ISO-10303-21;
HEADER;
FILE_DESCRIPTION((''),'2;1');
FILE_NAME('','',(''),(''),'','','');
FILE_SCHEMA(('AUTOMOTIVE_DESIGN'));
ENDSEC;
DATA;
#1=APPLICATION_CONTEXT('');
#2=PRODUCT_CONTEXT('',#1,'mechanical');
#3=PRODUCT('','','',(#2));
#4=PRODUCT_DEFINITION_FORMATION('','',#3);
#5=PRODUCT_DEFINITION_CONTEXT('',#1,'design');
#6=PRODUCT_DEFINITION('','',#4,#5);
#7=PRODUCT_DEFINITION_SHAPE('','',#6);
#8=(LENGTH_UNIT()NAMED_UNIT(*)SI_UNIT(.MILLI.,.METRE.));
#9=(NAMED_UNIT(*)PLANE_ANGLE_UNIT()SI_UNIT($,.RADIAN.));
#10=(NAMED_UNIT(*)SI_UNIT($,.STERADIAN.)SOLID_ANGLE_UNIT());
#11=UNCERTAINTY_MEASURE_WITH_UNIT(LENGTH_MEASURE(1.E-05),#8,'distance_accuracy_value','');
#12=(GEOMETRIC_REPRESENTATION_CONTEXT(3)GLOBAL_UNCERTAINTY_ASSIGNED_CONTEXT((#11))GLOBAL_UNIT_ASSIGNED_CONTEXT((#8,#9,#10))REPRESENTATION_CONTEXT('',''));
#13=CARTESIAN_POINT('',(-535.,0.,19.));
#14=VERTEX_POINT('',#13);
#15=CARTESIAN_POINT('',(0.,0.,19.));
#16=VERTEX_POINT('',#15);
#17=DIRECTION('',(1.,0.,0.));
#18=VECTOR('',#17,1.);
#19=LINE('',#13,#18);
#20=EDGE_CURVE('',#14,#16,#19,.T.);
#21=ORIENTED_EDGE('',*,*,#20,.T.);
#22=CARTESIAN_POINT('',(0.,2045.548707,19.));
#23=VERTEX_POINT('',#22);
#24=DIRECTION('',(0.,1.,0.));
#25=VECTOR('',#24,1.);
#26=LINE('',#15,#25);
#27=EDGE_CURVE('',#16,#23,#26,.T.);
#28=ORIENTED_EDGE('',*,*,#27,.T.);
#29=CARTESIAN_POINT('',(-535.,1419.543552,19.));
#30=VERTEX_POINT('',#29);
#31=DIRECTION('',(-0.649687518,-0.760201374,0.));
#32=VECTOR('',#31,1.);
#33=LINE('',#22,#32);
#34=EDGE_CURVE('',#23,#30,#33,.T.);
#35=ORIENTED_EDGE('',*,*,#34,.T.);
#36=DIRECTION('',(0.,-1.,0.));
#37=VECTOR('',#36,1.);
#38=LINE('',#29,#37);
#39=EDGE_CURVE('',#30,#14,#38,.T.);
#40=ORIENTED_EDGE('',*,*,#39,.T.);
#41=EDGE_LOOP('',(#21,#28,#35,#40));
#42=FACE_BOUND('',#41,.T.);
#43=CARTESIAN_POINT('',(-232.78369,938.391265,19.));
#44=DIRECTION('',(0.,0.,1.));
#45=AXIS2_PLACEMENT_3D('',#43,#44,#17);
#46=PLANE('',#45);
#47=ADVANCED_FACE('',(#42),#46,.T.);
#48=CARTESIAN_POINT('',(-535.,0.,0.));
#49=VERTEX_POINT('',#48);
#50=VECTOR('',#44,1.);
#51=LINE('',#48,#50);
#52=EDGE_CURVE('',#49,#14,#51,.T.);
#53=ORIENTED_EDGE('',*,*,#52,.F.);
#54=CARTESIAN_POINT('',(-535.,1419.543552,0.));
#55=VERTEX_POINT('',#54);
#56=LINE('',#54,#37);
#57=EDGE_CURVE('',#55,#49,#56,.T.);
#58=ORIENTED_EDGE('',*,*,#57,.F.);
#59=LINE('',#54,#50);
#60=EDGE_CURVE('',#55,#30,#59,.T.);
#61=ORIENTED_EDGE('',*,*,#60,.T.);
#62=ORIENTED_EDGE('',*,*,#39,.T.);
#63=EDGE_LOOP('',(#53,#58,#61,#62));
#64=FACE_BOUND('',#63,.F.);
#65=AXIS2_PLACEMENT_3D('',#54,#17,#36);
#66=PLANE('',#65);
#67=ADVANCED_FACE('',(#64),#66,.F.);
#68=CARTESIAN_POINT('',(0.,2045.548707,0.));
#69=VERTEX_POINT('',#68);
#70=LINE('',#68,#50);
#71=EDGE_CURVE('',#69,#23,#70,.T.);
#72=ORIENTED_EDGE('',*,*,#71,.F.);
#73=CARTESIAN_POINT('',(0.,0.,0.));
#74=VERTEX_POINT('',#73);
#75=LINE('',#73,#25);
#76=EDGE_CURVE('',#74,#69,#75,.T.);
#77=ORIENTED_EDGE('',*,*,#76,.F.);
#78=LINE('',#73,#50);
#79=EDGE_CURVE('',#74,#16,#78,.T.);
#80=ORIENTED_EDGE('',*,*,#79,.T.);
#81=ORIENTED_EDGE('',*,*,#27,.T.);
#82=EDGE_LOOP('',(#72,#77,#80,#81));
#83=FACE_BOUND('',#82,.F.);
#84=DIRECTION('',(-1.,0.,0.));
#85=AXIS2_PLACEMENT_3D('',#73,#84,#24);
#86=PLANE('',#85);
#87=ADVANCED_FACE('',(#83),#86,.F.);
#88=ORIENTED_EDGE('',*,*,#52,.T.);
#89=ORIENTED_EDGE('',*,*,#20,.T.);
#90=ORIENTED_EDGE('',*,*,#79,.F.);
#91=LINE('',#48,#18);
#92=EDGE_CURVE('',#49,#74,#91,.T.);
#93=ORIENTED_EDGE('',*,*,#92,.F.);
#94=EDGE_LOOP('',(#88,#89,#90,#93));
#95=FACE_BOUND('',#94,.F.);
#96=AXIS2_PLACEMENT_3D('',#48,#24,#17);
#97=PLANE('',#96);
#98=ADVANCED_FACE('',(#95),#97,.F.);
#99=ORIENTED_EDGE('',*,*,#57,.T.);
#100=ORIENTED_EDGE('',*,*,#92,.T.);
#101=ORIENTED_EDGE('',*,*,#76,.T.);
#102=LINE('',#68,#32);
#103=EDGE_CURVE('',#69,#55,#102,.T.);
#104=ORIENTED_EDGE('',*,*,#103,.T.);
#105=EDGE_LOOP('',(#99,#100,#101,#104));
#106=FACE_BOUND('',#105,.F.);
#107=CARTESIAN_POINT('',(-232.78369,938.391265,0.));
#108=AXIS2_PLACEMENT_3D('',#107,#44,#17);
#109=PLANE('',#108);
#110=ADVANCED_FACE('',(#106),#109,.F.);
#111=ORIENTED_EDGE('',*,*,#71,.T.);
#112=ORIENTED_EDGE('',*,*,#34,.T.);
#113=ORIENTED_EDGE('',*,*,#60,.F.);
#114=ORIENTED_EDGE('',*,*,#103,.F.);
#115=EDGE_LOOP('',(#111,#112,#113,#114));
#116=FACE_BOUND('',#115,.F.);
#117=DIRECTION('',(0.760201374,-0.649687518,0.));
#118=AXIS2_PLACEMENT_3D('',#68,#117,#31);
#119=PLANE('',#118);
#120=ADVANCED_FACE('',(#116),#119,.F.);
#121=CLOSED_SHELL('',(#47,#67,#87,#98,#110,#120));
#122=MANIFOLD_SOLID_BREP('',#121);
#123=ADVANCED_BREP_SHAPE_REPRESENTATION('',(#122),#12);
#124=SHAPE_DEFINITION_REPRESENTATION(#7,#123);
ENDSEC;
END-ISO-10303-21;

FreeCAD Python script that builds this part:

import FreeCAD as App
import Part
import Sketcher

V = App.Vector
Q = App.Units.Quantity

doc = App.newDocument("Part")
body = doc.addObject("PartDesign::Body", "Body")

sketch1 = doc.addObject("Sketcher::SketchObject", "Sketch")
body.addObject(sketch1)
sketch1.AttachmentSupport = (doc.XY_Plane, [""])
sketch1.MapMode = "FlatFace"
sketch1.addGeometry(Part.LineSegment(V(0, 0, 0), V(0, 2045.548707, 0)), False)
sketch1.addGeometry(Part.LineSegment(V(0, 2045.548707, 0), V(-535, 1419.543552, 0)), False)
sketch1.addGeometry(Part.LineSegment(V(-535, 1419.543552, 0), V(-535, 0, 0)), False)
sketch1.addGeometry(Part.LineSegment(V(-535, 0, 0), V(0, 0, 0)), False)
sketch1.addConstraint(Sketcher.Constraint("Coincident", 0, 2, 1, 1))
sketch1.addConstraint(Sketcher.Constraint("Coincident", 1, 2, 2, 1))
sketch1.addConstraint(Sketcher.Constraint("Coincident", 2, 2, 3, 1))
sketch1.addConstraint(Sketcher.Constraint("Coincident", 3, 2, 0, 1))
sketch1.addConstraint(Sketcher.Constraint("Vertical", 0))
sketch1.addConstraint(Sketcher.Constraint("Vertical", 2))
sketch1.addConstraint(Sketcher.Constraint("Horizontal", 3))
sketch1.addConstraint(Sketcher.Constraint("Coincident", 3, 2, -1, 1))
sketch1.addConstraint(Sketcher.Constraint("DistanceX", 3, 1, 3, 2, Q("535 mm")))
sketch1.addConstraint(Sketcher.Constraint("Distance", 1, Q("823.472801 mm")))
sketch1.addConstraint(Sketcher.Constraint("DistanceY", 2, 2, 2, 1, Q("1419.543552 mm")))
pad1 = doc.addObject("PartDesign::Pad", "Pad")
body.addObject(pad1)
pad1.Profile = sketch1
pad1.Length = 19

doc.recompute()
